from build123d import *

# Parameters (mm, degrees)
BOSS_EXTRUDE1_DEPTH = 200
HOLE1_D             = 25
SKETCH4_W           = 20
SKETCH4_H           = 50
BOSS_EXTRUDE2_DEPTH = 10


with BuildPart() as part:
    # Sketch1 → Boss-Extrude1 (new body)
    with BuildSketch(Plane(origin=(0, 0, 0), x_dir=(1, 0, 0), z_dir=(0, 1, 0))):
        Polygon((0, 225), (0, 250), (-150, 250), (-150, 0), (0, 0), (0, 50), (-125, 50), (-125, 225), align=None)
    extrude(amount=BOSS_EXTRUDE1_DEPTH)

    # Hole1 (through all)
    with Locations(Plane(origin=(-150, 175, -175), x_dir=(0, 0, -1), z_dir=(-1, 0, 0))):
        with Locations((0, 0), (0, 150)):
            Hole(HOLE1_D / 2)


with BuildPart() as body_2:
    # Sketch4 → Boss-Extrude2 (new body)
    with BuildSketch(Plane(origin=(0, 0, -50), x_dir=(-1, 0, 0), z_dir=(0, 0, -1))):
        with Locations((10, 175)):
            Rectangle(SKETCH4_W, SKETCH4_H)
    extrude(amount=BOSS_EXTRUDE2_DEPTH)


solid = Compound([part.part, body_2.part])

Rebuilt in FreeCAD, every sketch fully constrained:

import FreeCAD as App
import Part
import Sketcher
Q = App.Units.Quantity

doc = App.newDocument("Part")
params = doc.addObject("Spreadsheet::Sheet", "Params")
for row, (alias, value) in enumerate([
    ("sketch1_width", "150 mm"),
    ("sketch1_width2", "125 mm"),
    ("sketch1_height", "25 mm"),
    ("sketch1_height2", "250 mm"),
    ("sketch1_height3", "50 mm"),
    ("pad1_length", "200 mm"),
    ("sketch2_diameter", "25 mm"),
    ("hole_diameter", "25 mm"),
    ("sketch3_width", "20 mm"),
    ("sketch3_height", "50 mm"),
    ("pad2_length", "10 mm"),
], start=1):
    params.set(f"A{row}", alias)
    params.set(f"B{row}", "=" + value)
    params.setAlias(f"B{row}", alias)

body = doc.addObject("PartDesign::Body", "Body")

sketch1 = body.newObject("Sketcher::SketchObject", "Sketch")
sketch1.AttachmentSupport = (doc.getObject("XZ_Plane"), [""])
sketch1.MapMode = "FlatFace"
sketch1.addGeometry(Part.LineSegment(App.Vector(0, -225, 0), App.Vector(0, -250, 0)), False)
sketch1.addGeometry(Part.LineSegment(App.Vector(0, -250, 0), App.Vector(-150, -250, 0)), False)
sketch1.addGeometry(Part.LineSegment(App.Vector(-150, -250, 0), App.Vector(-150, 0, 0)), False)
sketch1.addGeometry(Part.LineSegment(App.Vector(-150, 0, 0), App.Vector(0, 0, 0)), False)
sketch1.addGeometry(Part.LineSegment(App.Vector(0, 0, 0), App.Vector(0, -50, 0)), False)
sketch1.addGeometry(Part.LineSegment(App.Vector(0, -50, 0), App.Vector(-125, -50, 0)), False)
sketch1.addGeometry(Part.LineSegment(App.Vector(-125, -50, 0), App.Vector(-125, -225, 0)), False)
sketch1.addGeometry(Part.LineSegment(App.Vector(-125, -225, 0), App.Vector(0, -225, 0)), False)
sketch1.addConstraint(Sketcher.Constraint("Coincident", 0, 2, 1, 1))
sketch1.addConstraint(Sketcher.Constraint("Coincident", 1, 2, 2, 1))
sketch1.addConstraint(Sketcher.Constraint("Coincident", 2, 2, 3, 1))
sketch1.addConstraint(Sketcher.Constraint("Coincident", 3, 2, 4, 1))
sketch1.addConstraint(Sketcher.Constraint("Coincident", 4, 2, 5, 1))
sketch1.addConstraint(Sketcher.Constraint("Coincident", 5, 2, 6, 1))
sketch1.addConstraint(Sketcher.Constraint("Coincident", 6, 2, 7, 1))
sketch1.addConstraint(Sketcher.Constraint("Coincident", 7, 2, 0, 1))
sketch1.addConstraint(Sketcher.Constraint("Vertical", 0))
sketch1.addConstraint(Sketcher.Constraint("Horizontal", 1))
sketch1.addConstraint(Sketcher.Constraint("Vertical", 2))
sketch1.addConstraint(Sketcher.Constraint("Horizontal", 3))
sketch1.addConstraint(Sketcher.Constraint("Vertical", 4))
sketch1.addConstraint(Sketcher.Constraint("Horizontal", 5))
sketch1.addConstraint(Sketcher.Constraint("Vertical", 6))
sketch1.addConstraint(Sketcher.Constraint("Horizontal", 7))
sketch1.addConstraint(Sketcher.Constraint("Coincident", 3, 2, -1, 1))
sketch1.addConstraint(Sketcher.Constraint("PointOnObject", 0, 2, -2))
sketch1.addConstraint(Sketcher.Constraint("DistanceX", 1, 2, 1, 1, Q("150 mm")))
sketch1.addConstraint(Sketcher.Constraint("DistanceX", 5, 2, 5, 1, Q("125 mm")))
sketch1.addConstraint(Sketcher.Constraint("DistanceY", 0, 2, 0, 1, Q("25 mm")))
sketch1.addConstraint(Sketcher.Constraint("DistanceY", 2, 1, 2, 2, Q("250 mm")))
sketch1.addConstraint(Sketcher.Constraint("DistanceY", 4, 2, 4, 1, Q("50 mm")))
sketch1.setExpression("Constraints[18]", "Params.sketch1_width")
sketch1.setExpression("Constraints[19]", "Params.sketch1_width2")
sketch1.setExpression("Constraints[20]", "Params.sketch1_height")
sketch1.setExpression("Constraints[21]", "Params.sketch1_height2")
sketch1.setExpression("Constraints[22]", "Params.sketch1_height3")
pad1 = body.newObject("PartDesign::Pad", "Pad")
pad1.Profile = sketch1
pad1.setExpression("Length", "Params.pad1_length")
pad1.Reversed = True

sketch2 = body.newObject("Sketcher::SketchObject", "Sketch001")
sketch2.AttachmentSupport = (doc.getObject("YZ_Plane"), [""])
sketch2.MapMode = "FlatFace"
sketch2.AttachmentOffset = App.Placement(App.Vector(0, 0, -150), App.Rotation())
sketch2.addGeometry(Part.Circle(App.Vector(175, -175, 0), App.Vector(0, 0, 1), 12.5), False)
sketch2.addGeometry(Part.Circle(App.Vector(25, -175, 0), App.Vector(0, 0, 1), 12.5), False)
sketch2.addConstraint(Sketcher.Constraint("Equal", 0, 1))
sketch2.addConstraint(Sketcher.Constraint("Horizontal", 0, 3, 1, 3))
sketch2.addConstraint(Sketcher.Constraint("Diameter", 0, Q("25 mm")))
sketch2.addConstraint(Sketcher.Constraint("DistanceX", -1, 1, 0, 3, Q("175 mm")))
sketch2.addConstraint(Sketcher.Constraint("DistanceY", 0, 3, -1, 1, Q("175 mm")))
sketch2.addConstraint(Sketcher.Constraint("DistanceX", -1, 1, 1, 3, Q("25 mm")))
sketch2.setExpression("Constraints[2]", "Params.sketch2_diameter")
doc.recompute()
hole = body.newObject("PartDesign::Hole", "Hole")
hole.Profile = sketch2
hole.ThreadType = "None"
hole.setExpression("Diameter", "Params.hole_diameter")
hole.DepthType = "ThroughAll"
hole.Reversed = True
body2 = doc.addObject("PartDesign::Body", "Body001")

sketch3 = body2.newObject("Sketcher::SketchObject", "Sketch002")
sketch3.AttachmentSupport = (doc.getObject("XY_Plane001"), [""])
sketch3.MapMode = "FlatFace"
sketch3.AttachmentOffset = App.Placement(App.Vector(0, 0, -50), App.Rotation())
sketch3.addGeometry(Part.LineSegment(App.Vector(0, 200, 0), App.Vector(0, 150, 0)), False)
sketch3.addGeometry(Part.LineSegment(App.Vector(0, 150, 0), App.Vector(-20, 150, 0)), False)
sketch3.addGeometry(Part.LineSegment(App.Vector(-20, 150, 0), App.Vector(-20, 200, 0)), False)
sketch3.addGeometry(Part.LineSegment(App.Vector(-20, 200, 0), App.Vector(0, 200, 0)), False)
sketch3.addConstraint(Sketcher.Constraint("Coincident", 0, 2, 1, 1))
sketch3.addConstraint(Sketcher.Constraint("Coincident", 1, 2, 2, 1))
sketch3.addConstraint(Sketcher.Constraint("Coincident", 2, 2, 3, 1))
sketch3.addConstraint(Sketcher.Constraint("Coincident", 3, 2, 0, 1))
sketch3.addConstraint(Sketcher.Constraint("Vertical", 0))
sketch3.addConstraint(Sketcher.Constraint("Horizontal", 1))
sketch3.addConstraint(Sketcher.Constraint("Vertical", 2))
sketch3.addConstraint(Sketcher.Constraint("Horizontal", 3))
sketch3.addConstraint(Sketcher.Constraint("PointOnObject", 0, 2, -2))
sketch3.addConstraint(Sketcher.Constraint("DistanceX", 1, 2, 1, 1, Q("20 mm")))
sketch3.addConstraint(Sketcher.Constraint("DistanceY", 0, 2, 0, 1, Q("50 mm")))
sketch3.addConstraint(Sketcher.Constraint("DistanceY", -1, 1, 0, 2, Q("150 mm")))
sketch3.setExpression("Constraints[9]", "Params.sketch3_width")
sketch3.setExpression("Constraints[10]", "Params.sketch3_height")
pad2 = body2.newObject("PartDesign::Pad", "Pad001")
pad2.Profile = sketch3
pad2.setExpression("Length", "Params.pad2_length")
pad2.Reversed = True

doc.recompute()
